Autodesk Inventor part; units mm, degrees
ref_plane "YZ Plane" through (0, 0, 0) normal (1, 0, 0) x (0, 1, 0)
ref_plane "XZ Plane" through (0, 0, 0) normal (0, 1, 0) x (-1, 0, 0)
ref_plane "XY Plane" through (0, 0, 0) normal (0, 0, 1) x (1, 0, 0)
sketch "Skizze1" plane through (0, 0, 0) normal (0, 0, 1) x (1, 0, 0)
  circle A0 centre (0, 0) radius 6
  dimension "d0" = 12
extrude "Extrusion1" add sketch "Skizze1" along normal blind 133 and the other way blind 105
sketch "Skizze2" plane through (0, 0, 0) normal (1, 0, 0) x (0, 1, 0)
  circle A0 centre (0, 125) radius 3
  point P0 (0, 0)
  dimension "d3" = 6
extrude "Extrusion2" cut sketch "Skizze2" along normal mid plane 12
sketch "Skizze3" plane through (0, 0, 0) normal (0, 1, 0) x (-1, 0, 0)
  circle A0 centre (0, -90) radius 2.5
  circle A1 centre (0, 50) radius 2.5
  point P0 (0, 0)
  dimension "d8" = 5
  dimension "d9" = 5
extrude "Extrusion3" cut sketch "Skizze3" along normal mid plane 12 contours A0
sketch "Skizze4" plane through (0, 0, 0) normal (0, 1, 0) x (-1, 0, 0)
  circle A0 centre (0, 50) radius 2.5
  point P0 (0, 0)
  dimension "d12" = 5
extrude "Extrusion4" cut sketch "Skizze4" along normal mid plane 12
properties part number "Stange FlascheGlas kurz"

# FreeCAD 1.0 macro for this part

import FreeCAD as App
import Part
import Sketcher
from FreeCAD import Vector
Q = App.Units.Quantity

doc = App.newDocument("Part")
body = doc.addObject("PartDesign::Body", "Body")

sketch1 = body.newObject("Sketcher::SketchObject", "Sketch")
sketch1.AttachmentSupport = (doc.getObject("XY_Plane"), [""])
sketch1.MapMode = "FlatFace"
sketch1.addGeometry(Part.Circle(Vector(0, 0, 0), Vector(0, 0, 1), 6), False)
sketch1.addConstraint([
    Sketcher.Constraint("Coincident", 0, 3, -1, 1),
    Sketcher.Constraint("Diameter", 0, Q("12 mm")),
])
pad1 = body.newObject("PartDesign::Pad", "Pad")
pad1.Profile = sketch1
pad1.Type = "TwoLengths"
pad1.Length = 133
pad1.Length2 = 105

sketch2 = body.newObject("Sketcher::SketchObject", "Sketch001")
sketch2.AttachmentSupport = (doc.getObject("YZ_Plane"), [""])
sketch2.MapMode = "FlatFace"
sketch2.addGeometry(Part.Circle(Vector(0, 125, 0), Vector(0, 0, 1), 3), False)
sketch2.addConstraint([
    Sketcher.Constraint("PointOnObject", 0, 3, -2),
    Sketcher.Constraint("Diameter", 0, Q("6 mm")),
    Sketcher.Constraint("DistanceY", -1, 1, 0, 3, Q("125 mm")),
])
pocket1 = body.newObject("PartDesign::Pocket", "Pocket")
pocket1.Profile = sketch2
pocket1.Length = 12
pocket1.Midplane = True

sketch3 = body.newObject("Sketcher::SketchObject", "Sketch002")
sketch3.AttachmentSupport = (doc.getObject("XZ_Plane"), [""])
sketch3.MapMode = "FlatFace"
sketch3.addGeometry(Part.Circle(Vector(0, -90, 0), Vector(0, 0, 1), 2.5), False)
sketch3.addConstraint([
    Sketcher.Constraint("PointOnObject", 0, 3, -2),
    Sketcher.Constraint("Diameter", 0, Q("5 mm")),
    Sketcher.Constraint("DistanceY", 0, 3, -1, 1, Q("90 mm")),
])
pocket2 = body.newObject("PartDesign::Pocket", "Pocket001")
pocket2.Profile = sketch3
pocket2.Length = 12
pocket2.Midplane = True

sketch4 = body.newObject("Sketcher::SketchObject", "Sketch003")
sketch4.AttachmentSupport = (doc.getObject("XZ_Plane"), [""])
sketch4.MapMode = "FlatFace"
sketch4.addGeometry(Part.Circle(Vector(0, 50, 0), Vector(0, 0, 1), 2.5), False)
sketch4.addConstraint([
    Sketcher.Constraint("PointOnObject", 0, 3, -2),
    Sketcher.Constraint("Diameter", 0, Q("5 mm")),
    Sketcher.Constraint("DistanceY", -1, 1, 0, 3, Q("50 mm")),
])
pocket3 = body.newObject("PartDesign::Pocket", "Pocket002")
pocket3.Profile = sketch4
pocket3.Length = 12
pocket3.Midplane = True

doc.recompute()
